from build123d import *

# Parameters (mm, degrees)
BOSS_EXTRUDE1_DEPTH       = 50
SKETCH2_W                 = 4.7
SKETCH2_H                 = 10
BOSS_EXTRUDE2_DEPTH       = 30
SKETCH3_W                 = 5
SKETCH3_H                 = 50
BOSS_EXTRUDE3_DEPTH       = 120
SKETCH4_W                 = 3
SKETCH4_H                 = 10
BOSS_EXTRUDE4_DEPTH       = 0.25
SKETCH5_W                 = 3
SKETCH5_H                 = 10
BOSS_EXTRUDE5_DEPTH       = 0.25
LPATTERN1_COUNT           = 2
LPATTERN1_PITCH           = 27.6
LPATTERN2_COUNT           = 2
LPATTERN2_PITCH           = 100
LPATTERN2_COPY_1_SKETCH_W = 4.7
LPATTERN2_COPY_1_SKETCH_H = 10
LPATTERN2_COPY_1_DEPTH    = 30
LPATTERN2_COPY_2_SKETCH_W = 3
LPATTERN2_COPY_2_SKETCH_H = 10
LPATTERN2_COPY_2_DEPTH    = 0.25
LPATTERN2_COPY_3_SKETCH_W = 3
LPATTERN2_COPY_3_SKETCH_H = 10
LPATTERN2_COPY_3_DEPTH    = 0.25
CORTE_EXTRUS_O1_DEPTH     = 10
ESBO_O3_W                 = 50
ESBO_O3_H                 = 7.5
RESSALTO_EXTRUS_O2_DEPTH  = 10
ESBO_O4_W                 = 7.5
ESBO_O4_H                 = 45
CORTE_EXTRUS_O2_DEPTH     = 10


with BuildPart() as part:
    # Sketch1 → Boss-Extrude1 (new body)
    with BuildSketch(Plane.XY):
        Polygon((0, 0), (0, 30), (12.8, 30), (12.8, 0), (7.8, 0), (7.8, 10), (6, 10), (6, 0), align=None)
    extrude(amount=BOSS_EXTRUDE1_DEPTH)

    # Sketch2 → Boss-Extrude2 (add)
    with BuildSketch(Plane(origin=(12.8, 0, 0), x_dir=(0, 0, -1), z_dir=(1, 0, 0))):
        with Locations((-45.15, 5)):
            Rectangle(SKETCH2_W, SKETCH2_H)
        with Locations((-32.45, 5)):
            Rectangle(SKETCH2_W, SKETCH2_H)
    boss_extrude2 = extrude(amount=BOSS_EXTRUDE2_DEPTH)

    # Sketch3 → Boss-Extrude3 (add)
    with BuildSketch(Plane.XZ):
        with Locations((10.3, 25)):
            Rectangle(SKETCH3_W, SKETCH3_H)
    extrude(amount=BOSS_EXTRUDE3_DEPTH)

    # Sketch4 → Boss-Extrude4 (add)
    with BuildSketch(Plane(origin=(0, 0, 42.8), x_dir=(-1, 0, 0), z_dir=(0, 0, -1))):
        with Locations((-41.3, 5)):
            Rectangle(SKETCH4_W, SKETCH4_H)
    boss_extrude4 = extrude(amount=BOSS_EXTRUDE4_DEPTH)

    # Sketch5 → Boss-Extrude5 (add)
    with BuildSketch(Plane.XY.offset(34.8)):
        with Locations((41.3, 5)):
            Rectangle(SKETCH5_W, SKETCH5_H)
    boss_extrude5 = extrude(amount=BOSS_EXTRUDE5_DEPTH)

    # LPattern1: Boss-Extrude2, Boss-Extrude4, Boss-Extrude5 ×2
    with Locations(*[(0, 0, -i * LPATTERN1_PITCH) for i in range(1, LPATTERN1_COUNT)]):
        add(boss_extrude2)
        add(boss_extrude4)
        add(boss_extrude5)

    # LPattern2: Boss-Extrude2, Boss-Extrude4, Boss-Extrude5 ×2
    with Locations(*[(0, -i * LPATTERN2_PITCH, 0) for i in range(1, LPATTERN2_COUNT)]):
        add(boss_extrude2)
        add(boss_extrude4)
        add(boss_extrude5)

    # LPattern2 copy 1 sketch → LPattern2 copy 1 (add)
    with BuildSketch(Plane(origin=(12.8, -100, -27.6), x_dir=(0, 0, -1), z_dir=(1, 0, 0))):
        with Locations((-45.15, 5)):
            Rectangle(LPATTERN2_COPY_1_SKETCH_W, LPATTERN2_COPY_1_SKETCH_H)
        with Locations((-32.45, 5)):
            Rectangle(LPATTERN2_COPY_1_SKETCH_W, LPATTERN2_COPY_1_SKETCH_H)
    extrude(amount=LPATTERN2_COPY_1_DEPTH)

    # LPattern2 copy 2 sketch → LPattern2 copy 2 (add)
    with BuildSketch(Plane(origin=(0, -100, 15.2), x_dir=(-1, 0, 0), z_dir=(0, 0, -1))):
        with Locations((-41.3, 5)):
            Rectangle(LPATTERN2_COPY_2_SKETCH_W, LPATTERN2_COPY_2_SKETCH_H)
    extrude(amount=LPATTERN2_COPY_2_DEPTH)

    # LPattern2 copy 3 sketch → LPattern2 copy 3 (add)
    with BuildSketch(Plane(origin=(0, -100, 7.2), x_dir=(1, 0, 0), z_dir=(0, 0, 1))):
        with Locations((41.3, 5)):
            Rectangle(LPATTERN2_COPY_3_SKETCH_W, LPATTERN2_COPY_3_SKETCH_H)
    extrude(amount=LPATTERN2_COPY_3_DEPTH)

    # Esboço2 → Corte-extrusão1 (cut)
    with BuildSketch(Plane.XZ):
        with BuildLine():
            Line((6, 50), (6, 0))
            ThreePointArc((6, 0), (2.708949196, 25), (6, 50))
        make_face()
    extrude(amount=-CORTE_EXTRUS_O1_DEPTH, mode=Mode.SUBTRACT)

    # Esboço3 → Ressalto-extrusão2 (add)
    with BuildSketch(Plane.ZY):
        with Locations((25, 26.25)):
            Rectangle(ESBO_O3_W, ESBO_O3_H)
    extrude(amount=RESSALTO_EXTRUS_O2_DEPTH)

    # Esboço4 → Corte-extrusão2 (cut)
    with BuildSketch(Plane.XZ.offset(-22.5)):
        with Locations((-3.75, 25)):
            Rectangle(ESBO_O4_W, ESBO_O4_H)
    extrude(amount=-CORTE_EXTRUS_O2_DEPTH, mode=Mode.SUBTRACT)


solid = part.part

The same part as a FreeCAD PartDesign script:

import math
import FreeCAD as App
import Part
import Sketcher
from FreeCAD import Vector
Q = App.Units.Quantity

doc = App.newDocument("Part")
body = doc.addObject("PartDesign::Body", "Body")

# Sketch on XY plane
sketch1 = body.newObject("Sketcher::SketchObject", "Sketch")
sketch1.AttachmentSupport = (doc.getObject("XY_Plane"), [""])
sketch1.MapMode = "FlatFace"
sketch1.addGeometry([
    Part.LineSegment(Vector(0, 30, 0), Vector(0, 0, 0)),  # 0
    Part.LineSegment(Vector(0, 0, 0), Vector(6, 0, 0)),  # 1
    Part.LineSegment(Vector(6, 0, 0), Vector(6, 10, 0)),  # 2
    Part.LineSegment(Vector(6, 10, 0), Vector(7.8, 10, 0)),  # 3
    Part.LineSegment(Vector(7.8, 10, 0), Vector(7.8, 0, 0)),  # 4
    Part.LineSegment(Vector(7.8, 0, 0), Vector(12.8, 0, 0)),  # 5
    Part.LineSegment(Vector(12.8, 0, 0), Vector(12.8, 30, 0)),  # 6
    Part.LineSegment(Vector(12.8, 30, 0), Vector(0, 30, 0)),  # 7
], False)
sketch1.addConstraint([
    Sketcher.Constraint("Coincident", 0, 2, 1, 1),
    Sketcher.Constraint("Coincident", 1, 2, 2, 1),
    Sketcher.Constraint("Coincident", 2, 2, 3, 1),
    Sketcher.Constraint("Coincident", 3, 2, 4, 1),
    Sketcher.Constraint("Coincident", 4, 2, 5, 1),
    Sketcher.Constraint("Coincident", 5, 2, 6, 1),
    Sketcher.Constraint("Coincident", 6, 2, 7, 1),
    Sketcher.Constraint("Coincident", 7, 2, 0, 1),
    Sketcher.Constraint("Vertical", 0),
    Sketcher.Constraint("Horizontal", 1),
    Sketcher.Constraint("Vertical", 2),
    Sketcher.Constraint("Horizontal", 3),
    Sketcher.Constraint("Vertical", 4),
    Sketcher.Constraint("Horizontal", 5),
    Sketcher.Constraint("Vertical", 6),
    Sketcher.Constraint("Horizontal", 7),
    Sketcher.Constraint("Coincident", 0, 2, -1, 1),
    Sketcher.Constraint("PointOnObject", 4, 2, -1),
    Sketcher.Constraint("DistanceX", 1, 1, 1, 2, Q("6 mm")),
    Sketcher.Constraint("DistanceX", 5, 1, 5, 2, Q("5 mm")),
    Sketcher.Constraint("DistanceY", 0, 2, 0, 1, Q("30 mm")),
    Sketcher.Constraint("DistanceY", 2, 1, 2, 2, Q("10 mm")),
    Sketcher.Constraint("DistanceX", 3, 1, 3, 2, Q("1.8 mm")),
])
pad1 = body.newObject("PartDesign::Pad", "Pad")
pad1.Profile = sketch1
pad1.Length = 50

# Sketch on YZ plane
sketch2 = body.newObject("Sketcher::SketchObject", "Sketch001")
sketch2.AttachmentSupport = (doc.getObject("YZ_Plane"), [""])
sketch2.MapMode = "FlatFace"
sketch2.AttachmentOffset = App.Placement(Vector(0, 0, 12.8), App.Rotation())
sketch2.addGeometry([
    Part.LineSegment(Vector(10, 47.5, 0), Vector(0, 47.5, 0)),  # 0
    Part.LineSegment(Vector(0, 47.5, 0), Vector(0, 42.8, 0)),  # 1
    Part.LineSegment(Vector(0, 42.8, 0), Vector(10, 42.8, 0)),  # 2
    Part.LineSegment(Vector(10, 42.8, 0), Vector(10, 47.5, 0)),  # 3
    Part.LineSegment(Vector(10, 34.8, 0), Vector(0, 34.8, 0)),  # 4
    Part.LineSegment(Vector(0, 34.8, 0), Vector(0, 30.1, 0)),  # 5
    Part.LineSegment(Vector(0, 30.1, 0), Vector(10, 30.1, 0)),  # 6
    Part.LineSegment(Vector(10, 30.1, 0), Vector(10, 34.8, 0)),  # 7
], False)
sketch2.addConstraint([
    Sketcher.Constraint("Coincident", 0, 2, 1, 1),
    Sketcher.Constraint("Coincident", 1, 2, 2, 1),
    Sketcher.Constraint("Coincident", 2, 2, 3, 1),
    Sketcher.Constraint("Coincident", 3, 2, 0, 1),
    Sketcher.Constraint("Coincident", 4, 2, 5, 1),
    Sketcher.Constraint("Coincident", 5, 2, 6, 1),
    Sketcher.Constraint("Coincident", 6, 2, 7, 1),
    Sketcher.Constraint("Coincident", 7, 2, 4, 1),
    Sketcher.Constraint("Horizontal", 0),
    Sketcher.Constraint("Vertical", 1),
    Sketcher.Constraint("Horizontal", 2),
    Sketcher.Constraint("Vertical", 3),
    Sketcher.Constraint("Horizontal", 4),
    Sketcher.Constraint("Vertical", 5),
    Sketcher.Constraint("Horizontal", 6),
    Sketcher.Constraint("Vertical", 7),
    Sketcher.Constraint("PointOnObject", 0, 2, -2),
    Sketcher.Constraint("PointOnObject", 4, 2, -2),
    Sketcher.Constraint("Vertical", 3, 2, 6, 2),
    Sketcher.Constraint("Equal", 3, 5),
    Sketcher.Constraint("DistanceX", 0, 2, 0, 1, Q("10 mm")),
    Sketcher.Constraint("DistanceY", 1, 2, 1, 1, Q("4.7 mm")),
    Sketcher.Constraint("DistanceY", 4, 2, 1, 2, Q("8 mm")),
    Sketcher.Constraint("DistanceY", -1, 1, 0, 2, Q("47.5 mm")),
])
pad2 = body.newObject("PartDesign::Pad", "Pad001")
pad2.Profile = sketch2
pad2.Length = 30

# Sketch on XZ plane
sketch3 = body.newObject("Sketcher::SketchObject", "Sketch002")
sketch3.AttachmentSupport = (doc.getObject("XZ_Plane"), [""])
sketch3.MapMode = "FlatFace"
sketch3.addGeometry([
    Part.LineSegment(Vector(7.8, 50, 0), Vector(7.8, 0, 0)),
    Part.LineSegment(Vector(7.8, 0, 0), Vector(12.8, 0, 0)),
    Part.LineSegment(Vector(12.8, 0, 0), Vector(12.8, 50, 0)),
    Part.LineSegment(Vector(12.8, 50, 0), Vector(7.8, 50, 0)),
], False)
sketch3.addConstraint([
    Sketcher.Constraint("Coincident", 0, 2, 1, 1),
    Sketcher.Constraint("Coincident", 1, 2, 2, 1),
    Sketcher.Constraint("Coincident", 2, 2, 3, 1),
    Sketcher.Constraint("Coincident", 3, 2, 0, 1),
    Sketcher.Constraint("Vertical", 0),
    Sketcher.Constraint("Horizontal", 1),
    Sketcher.Constraint("Vertical", 2),
    Sketcher.Constraint("Horizontal", 3),
    Sketcher.Constraint("PointOnObject", 0, 2, -1),
    Sketcher.Constraint("DistanceX", 1, 1, 1, 2, Q("5 mm")),
    Sketcher.Constraint("DistanceY", 0, 2, 0, 1, Q("50 mm")),
    Sketcher.Constraint("DistanceX", -1, 1, 0, 2, Q("7.8 mm")),
])
pad3 = body.newObject("PartDesign::Pad", "Pad002")
pad3.Profile = sketch3
pad3.Length = 120

# Sketch on XY plane
sketch4 = body.newObject("Sketcher::SketchObject", "Sketch003")
sketch4.AttachmentSupport = (doc.getObject("XY_Plane"), [""])
sketch4.MapMode = "FlatFace"
sketch4.AttachmentOffset = App.Placement(Vector(0, 0, 42.8), App.Rotation())
sketch4.addGeometry([
    Part.LineSegment(Vector(42.8, 10, 0), Vector(42.8, 0, 0)),
    Part.LineSegment(Vector(42.8, 0, 0), Vector(39.8, 0, 0)),
    Part.LineSegment(Vector(39.8, 0, 0), Vector(39.8, 10, 0)),
    Part.LineSegment(Vector(39.8, 10, 0), Vector(42.8, 10, 0)),
], False)
sketch4.addConstraint([
    Sketcher.Constraint("Coincident", 0, 2, 1, 1),
    Sketcher.Constraint("Coincident", 1, 2, 2, 1),
    Sketcher.Constraint("Coincident", 2, 2, 3, 1),
    Sketcher.Constraint("Coincident", 3, 2, 0, 1),
    Sketcher.Constraint("Vertical", 0),
    Sketcher.Constraint("Horizontal", 1),
    Sketcher.Constraint("Vertical", 2),
    Sketcher.Constraint("Horizontal", 3),
    Sketcher.Constraint("PointOnObject", 0, 2, -1),
    Sketcher.Constraint("DistanceX", 1, 2, 1, 1, Q("3 mm")),
    Sketcher.Constraint("DistanceY", 0, 2, 0, 1, Q("10 mm")),
    Sketcher.Constraint("DistanceX", -1, 1, 0, 2, Q("42.8 mm")),
])
pad4 = body.newObject("PartDesign::Pad", "Pad003")
pad4.Profile = sketch4
pad4.Length = 0.25
pad4.Reversed = True

# Sketch on XY plane
sketch5 = body.newObject("Sketcher::SketchObject", "Sketch004")
sketch5.AttachmentSupport = (doc.getObject("XY_Plane"), [""])
sketch5.MapMode = "FlatFace"
sketch5.AttachmentOffset = App.Placement(Vector(0, 0, 34.8), App.Rotation())
sketch5.addGeometry([
    Part.LineSegment(Vector(39.8, 10, 0), Vector(39.8, 0, 0)),
    Part.LineSegment(Vector(39.8, 0, 0), Vector(42.8, 0, 0)),
    Part.LineSegment(Vector(42.8, 0, 0), Vector(42.8, 10, 0)),
    Part.LineSegment(Vector(42.8, 10, 0), Vector(39.8, 10, 0)),
], False)
sketch5.addConstraint([
    Sketcher.Constraint("Coincident", 0, 2, 1, 1),
    Sketcher.Constraint("Coincident", 1, 2, 2, 1),
    Sketcher.Constraint("Coincident", 2, 2, 3, 1),
    Sketcher.Constraint("Coincident", 3, 2, 0, 1),
    Sketcher.Constraint("Vertical", 0),
    Sketcher.Constraint("Horizontal", 1),
    Sketcher.Constraint("Vertical", 2),
    Sketcher.Constraint("Horizontal", 3),
    Sketcher.Constraint("PointOnObject", 0, 2, -1),
    Sketcher.Constraint("DistanceX", 1, 1, 1, 2, Q("3 mm")),
    Sketcher.Constraint("DistanceY", 0, 2, 0, 1, Q("10 mm")),
    Sketcher.Constraint("DistanceX", -1, 1, 0, 2, Q("39.8 mm")),
])
pad5 = body.newObject("PartDesign::Pad", "Pad004")
pad5.Profile = sketch5
pad5.Length = 0.25
doc.recompute()

linearpattern = body.newObject("PartDesign::LinearPattern", "LinearPattern")
linearpattern.Originals = [pad2, pad4, pad5]
linearpattern.Direction = (doc.getObject("Z_Axis"), [""])
linearpattern.Mode = "offset"
linearpattern.Offset = 27.6
linearpattern.Occurrences = 2
linearpattern.Reversed = True
body.Tip = linearpattern
doc.recompute()

linearpattern2 = body.newObject("PartDesign::LinearPattern", "LinearPattern001")
linearpattern2.Originals = [pad2, pad4, pad5]
linearpattern2.Direction = (doc.getObject("Y_Axis"), [""])
linearpattern2.Mode = "offset"
linearpattern2.Offset = 100
linearpattern2.Occurrences = 2
linearpattern2.Reversed = True
body.Tip = linearpattern2

# Sketch on YZ plane
sketch6 = body.newObject("Sketcher::SketchObject", "Sketch005")
sketch6.AttachmentSupport = (doc.getObject("YZ_Plane"), [""])
sketch6.MapMode = "FlatFace"
sketch6.AttachmentOffset = App.Placement(Vector(0, 0, 12.8), App.Rotation())
sketch6.addGeometry([
    Part.LineSegment(Vector(-90, 19.9, 0), Vector(-100, 19.9, 0)),  # 0
    Part.LineSegment(Vector(-100, 19.9, 0), Vector(-100, 15.2, 0)),  # 1
    Part.LineSegment(Vector(-100, 15.2, 0), Vector(-90, 15.2, 0)),  # 2
    Part.LineSegment(Vector(-90, 15.2, 0), Vector(-90, 19.9, 0)),  # 3
    Part.LineSegment(Vector(-90, 7.2, 0), Vector(-100, 7.2, 0)),  # 4
    Part.LineSegment(Vector(-100, 7.2, 0), Vector(-100, 2.5, 0)),  # 5
    Part.LineSegment(Vector(-100, 2.5, 0), Vector(-90, 2.5, 0)),  # 6
    Part.LineSegment(Vector(-90, 2.5, 0), Vector(-90, 7.2, 0)),  # 7
], False)
sketch6.addConstraint([
    Sketcher.Constraint("Coincident", 0, 2, 1, 1),
    Sketcher.Constraint("Coincident", 1, 2, 2, 1),
    Sketcher.Constraint("Coincident", 2, 2, 3, 1),
    Sketcher.Constraint("Coincident", 3, 2, 0, 1),
    Sketcher.Constraint("Coincident", 4, 2, 5, 1),
    Sketcher.Constraint("Coincident", 5, 2, 6, 1),
    Sketcher.Constraint("Coincident", 6, 2, 7, 1),
    Sketcher.Constraint("Coincident", 7, 2, 4, 1),
    Sketcher.Constraint("Horizontal", 0),
    Sketcher.Constraint("Vertical", 1),
    Sketcher.Constraint("Horizontal", 2),
    Sketcher.Constraint("Vertical", 3),
    Sketcher.Constraint("Horizontal", 4),
    Sketcher.Constraint("Vertical", 5),
    Sketcher.Constraint("Horizontal", 6),
    Sketcher.Constraint("Vertical", 7),
    Sketcher.Constraint("Vertical", 1, 2, 4, 2),
    Sketcher.Constraint("Vertical", 3, 2, 6, 2),
    Sketcher.Constraint("Equal", 3, 5),
    Sketcher.Constraint("DistanceX", 0, 2, 0, 1, Q("10 mm")),
    Sketcher.Constraint("DistanceY", 1, 2, 1, 1, Q("4.7 mm")),
    Sketcher.Constraint("DistanceX", 0, 2, -1, 1, Q("100 mm")),
    Sketcher.Constraint("DistanceY", 4, 2, 1, 2, Q("8 mm")),
    Sketcher.Constraint("DistanceY", -1, 1, 0, 2, Q("19.9 mm")),
])
pad6 = body.newObject("PartDesign::Pad", "Pad005")
pad6.Profile = sketch6
pad6.Length = 30

# Sketch on XY plane
sketch7 = body.newObject("Sketcher::SketchObject", "Sketch006")
sketch7.AttachmentSupport = (doc.getObject("XY_Plane"), [""])
sketch7.MapMode = "FlatFace"
sketch7.AttachmentOffset = App.Placement(Vector(0, 0, 15.2), App.Rotation())
sketch7.addGeometry([
    Part.LineSegment(Vector(42.8, -90, 0), Vector(42.8, -100, 0)),
    Part.LineSegment(Vector(42.8, -100, 0), Vector(39.8, -100, 0)),
    Part.LineSegment(Vector(39.8, -100, 0), Vector(39.8, -90, 0)),
    Part.LineSegment(Vector(39.8, -90, 0), Vector(42.8, -90, 0)),
], False)
sketch7.addConstraint([
    Sketcher.Constraint("Coincident", 0, 2, 1, 1),
    Sketcher.Constraint("Coincident", 1, 2, 2, 1),
    Sketcher.Constraint("Coincident", 2, 2, 3, 1),
    Sketcher.Constraint("Coincident", 3, 2, 0, 1),
    Sketcher.Constraint("Vertical", 0),
    Sketcher.Constraint("Horizontal", 1),
    Sketcher.Constraint("Vertical", 2),
    Sketcher.Constraint("Horizontal", 3),
    Sketcher.Constraint("DistanceX", 1, 2, 1, 1, Q("3 mm")),
    Sketcher.Constraint("DistanceY", 0, 2, 0, 1, Q("10 mm")),
    Sketcher.Constraint("DistanceY", 0, 2, -1, 1, Q("100 mm")),
    Sketcher.Constraint("DistanceX", -1, 1, 0, 2, Q("42.8 mm")),
])
pad7 = body.newObject("PartDesign::Pad", "Pad006")
pad7.Profile = sketch7
pad7.Length = 0.25
pad7.Reversed = True

# Sketch on XY plane
sketch8 = body.newObject("Sketcher::SketchObject", "Sketch007")
sketch8.AttachmentSupport = (doc.getObject("XY_Plane"), [""])
sketch8.MapMode = "FlatFace"
sketch8.AttachmentOffset = App.Placement(Vector(0, 0, 7.2), App.Rotation())
sketch8.addGeometry([
    Part.LineSegment(Vector(39.8, -90, 0), Vector(39.8, -100, 0)),
    Part.LineSegment(Vector(39.8, -100, 0), Vector(42.8, -100, 0)),
    Part.LineSegment(Vector(42.8, -100, 0), Vector(42.8, -90, 0)),
    Part.LineSegment(Vector(42.8, -90, 0), Vector(39.8, -90, 0)),
], False)
sketch8.addConstraint([
    Sketcher.Constraint("Coincident", 0, 2, 1, 1),
    Sketcher.Constraint("Coincident", 1, 2, 2, 1),
    Sketcher.Constraint("Coincident", 2, 2, 3, 1),
    Sketcher.Constraint("Coincident", 3, 2, 0, 1),
    Sketcher.Constraint("Vertical", 0),
    Sketcher.Constraint("Horizontal", 1),
    Sketcher.Constraint("Vertical", 2),
    Sketcher.Constraint("Horizontal", 3),
    Sketcher.Constraint("DistanceX", 1, 1, 1, 2, Q("3 mm")),
    Sketcher.Constraint("DistanceY", 0, 2, 0, 1, Q("10 mm")),
    Sketcher.Constraint("DistanceY", 0, 2, -1, 1, Q("100 mm")),
    Sketcher.Constraint("DistanceX", -1, 1, 0, 2, Q("39.8 mm")),
])
pad8 = body.newObject("PartDesign::Pad", "Pad007")
pad8.Profile = sketch8
pad8.Length = 0.25

# Sketch on XZ plane
sketch9 = body.newObject("Sketcher::SketchObject", "Sketch008")
sketch9.AttachmentSupport = (doc.getObject("XZ_Plane"), [""])
sketch9.MapMode = "FlatFace"
sketch9.addGeometry([
    Part.LineSegment(Vector(6, 0, 0), Vector(6, 50, 0)),
    Part.ArcOfCircle(Part.Circle(Vector(99.308949, 25, 0), Vector(0, 0, 1), 96.6), math.radians(165.001179), math.radians(194.998821)),
], False)
sketch9.addConstraint([
    Sketcher.Constraint("Coincident", 0, 1, 1, 2),
    Sketcher.Constraint("Coincident", 1, 1, 0, 2),
    Sketcher.Constraint("Vertical", 0),
    Sketcher.Constraint("PointOnObject", 0, 1, -1),
    Sketcher.Constraint("Radius", 1, Q("96.6 mm")),
    Sketcher.Constraint("DistanceY", 0, 1, 0, 2, Q("50 mm")),
    Sketcher.Constraint("DistanceX", -1, 1, 0, 1, Q("6 mm")),
])
pocket1 = body.newObject("PartDesign::Pocket", "Pocket")
pocket1.Profile = sketch9
pocket1.Length = 10

# Sketch on YZ plane
sketch10 = body.newObject("Sketcher::SketchObject", "Sketch009")
sketch10.AttachmentSupport = (doc.getObject("YZ_Plane"), [""])
sketch10.MapMode = "FlatFace"
sketch10.addGeometry([
    Part.LineSegment(Vector(30, 0, 0), Vector(22.5, 0, 0)),
    Part.LineSegment(Vector(22.5, 0, 0), Vector(22.5, 50, 0)),
    Part.LineSegment(Vector(22.5, 50, 0), Vector(30, 50, 0)),
    Part.LineSegment(Vector(30, 50, 0), Vector(30, 0, 0)),
], False)
sketch10.addConstraint([
    Sketcher.Constraint("Coincident", 0, 2, 1, 1),
    Sketcher.Constraint("Coincident", 1, 2, 2, 1),
    Sketcher.Constraint("Coincident", 2, 2, 3, 1),
    Sketcher.Constraint("Coincident", 3, 2, 0, 1),
    Sketcher.Constraint("Horizontal", 0),
    Sketcher.Constraint("Vertical", 1),
    Sketcher.Constraint("Horizontal", 2),
    Sketcher.Constraint("Vertical", 3),
    Sketcher.Constraint("PointOnObject", 0, 2, -1),
    Sketcher.Constraint("DistanceY", 1, 1, 1, 2, Q("50 mm")),
    Sketcher.Constraint("DistanceX", 0, 2, 0, 1, Q("7.5 mm")),
    Sketcher.Constraint("DistanceX", -1, 1, 2, 2, Q("30 mm")),
])
pad9 = body.newObject("PartDesign::Pad", "Pad008")
pad9.Profile = sketch10
pad9.Length = 10
pad9.Reversed = True

# Sketch on XZ plane
sketch11 = body.newObject("Sketcher::SketchObject", "Sketch010")
sketch11.AttachmentSupport = (doc.getObject("XZ_Plane"), [""])
sketch11.MapMode = "FlatFace"
sketch11.AttachmentOffset = App.Placement(Vector(0, 0, -22.5), App.Rotation())
sketch11.addGeometry([
    Part.LineSegment(Vector(-7.5, 47.5, 0), Vector(-7.5, 2.5, 0)),
    Part.LineSegment(Vector(-7.5, 2.5, 0), Vector(0, 2.5, 0)),
    Part.LineSegment(Vector(0, 2.5, 0), Vector(0, 47.5, 0)),
    Part.LineSegment(Vector(0, 47.5, 0), Vector(-7.5, 47.5, 0)),
], False)
sketch11.addConstraint([
    Sketcher.Constraint("Coincident", 0, 2, 1, 1),
    Sketcher.Constraint("Coincident", 1, 2, 2, 1),
    Sketcher.Constraint("Coincident", 2, 2, 3, 1),
    Sketcher.Constraint("Coincident", 3, 2, 0, 1),
    Sketcher.Constraint("Vertical", 0),
    Sketcher.Constraint("Horizontal", 1),
    Sketcher.Constraint("Vertical", 2),
    Sketcher.Constraint("Horizontal", 3),
    Sketcher.Constraint("PointOnObject", 1, 2, -2),
    Sketcher.Constraint("DistanceY", 0, 2, 0, 1, Q("45 mm")),
    Sketcher.Constraint("DistanceX", 1, 1, 1, 2, Q("7.5 mm")),
    Sketcher.Constraint("DistanceY", -1, 1, 0, 2, Q("2.5 mm")),
])
pocket2 = body.newObject("PartDesign::Pocket", "Pocket001")
pocket2.Profile = sketch11
pocket2.Length = 10

doc.recompute()
